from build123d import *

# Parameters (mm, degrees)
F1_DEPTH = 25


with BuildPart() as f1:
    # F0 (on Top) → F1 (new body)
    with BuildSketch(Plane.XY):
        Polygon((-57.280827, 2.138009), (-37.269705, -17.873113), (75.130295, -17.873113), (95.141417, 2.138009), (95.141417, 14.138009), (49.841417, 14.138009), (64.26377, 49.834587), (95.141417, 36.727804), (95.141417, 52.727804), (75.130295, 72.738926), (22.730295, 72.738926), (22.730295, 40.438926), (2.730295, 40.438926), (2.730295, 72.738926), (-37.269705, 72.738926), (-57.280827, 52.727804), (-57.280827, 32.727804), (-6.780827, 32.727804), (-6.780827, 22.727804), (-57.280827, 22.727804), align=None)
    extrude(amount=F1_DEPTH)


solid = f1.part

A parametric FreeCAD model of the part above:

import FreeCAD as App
import Part
import Sketcher
Q = App.Units.Quantity

doc = App.newDocument("Part")
body = doc.addObject("PartDesign::Body", "Body")

# Sketch on XY plane
sketch1 = doc.addObject("Sketcher::SketchObject", "Sketch")
body.addObject(sketch1)
sketch1.AttachmentSupport = (doc.XY_Plane, [""])
sketch1.MapMode = "FlatFace"
sketch1.addGeometry([
    Part.LineSegment(App.Vector(-57.280827, 2.138009, 0), App.Vector(-37.269705, -17.873113, 0)),  # 0
    Part.LineSegment(App.Vector(-37.269705, -17.873113, 0), App.Vector(75.130295, -17.873113, 0)),  # 1
    Part.LineSegment(App.Vector(75.130295, -17.873113, 0), App.Vector(95.141417, 2.138009, 0)),  # 2
    Part.LineSegment(App.Vector(95.141417, 2.138009, 0), App.Vector(95.141417, 14.138009, 0)),  # 3
    Part.LineSegment(App.Vector(95.141417, 14.138009, 0), App.Vector(49.841417, 14.138009, 0)),  # 4
    Part.LineSegment(App.Vector(49.841417, 14.138009, 0), App.Vector(64.26377, 49.834587, 0)),  # 5
    Part.LineSegment(App.Vector(64.26377, 49.834587, 0), App.Vector(95.141417, 36.727804, 0)),  # 6
    Part.LineSegment(App.Vector(95.141417, 36.727804, 0), App.Vector(95.141417, 52.727804, 0)),  # 7
    Part.LineSegment(App.Vector(95.141417, 52.727804, 0), App.Vector(75.130295, 72.738926, 0)),  # 8
    Part.LineSegment(App.Vector(75.130295, 72.738926, 0), App.Vector(22.730295, 72.738926, 0)),  # 9
    Part.LineSegment(App.Vector(22.730295, 72.738926, 0), App.Vector(22.730295, 40.438926, 0)),  # 10
    Part.LineSegment(App.Vector(22.730295, 40.438926, 0), App.Vector(2.730295, 40.438926, 0)),  # 11
    Part.LineSegment(App.Vector(2.730295, 40.438926, 0), App.Vector(2.730295, 72.738926, 0)),  # 12
    Part.LineSegment(App.Vector(2.730295, 72.738926, 0), App.Vector(-37.269705, 72.738926, 0)),  # 13
    Part.LineSegment(App.Vector(-37.269705, 72.738926, 0), App.Vector(-57.280827, 52.727804, 0)),  # 14
    Part.LineSegment(App.Vector(-57.280827, 52.727804, 0), App.Vector(-57.280827, 32.727804, 0)),  # 15
    Part.LineSegment(App.Vector(-57.280827, 32.727804, 0), App.Vector(-6.780827, 32.727804, 0)),  # 16
    Part.LineSegment(App.Vector(-6.780827, 32.727804, 0), App.Vector(-6.780827, 22.727804, 0)),  # 17
    Part.LineSegment(App.Vector(-6.780827, 22.727804, 0), App.Vector(-57.280827, 22.727804, 0)),  # 18
    Part.LineSegment(App.Vector(-57.280827, 22.727804, 0), App.Vector(-57.280827, 2.138009, 0)),  # 19
], False)
sketch1.addConstraint([
    Sketcher.Constraint("Coincident", 0, 2, 1, 1),
    Sketcher.Constraint("Coincident", 1, 2, 2, 1),
    Sketcher.Constraint("Coincident", 2, 2, 3, 1),
    Sketcher.Constraint("Coincident", 3, 2, 4, 1),
    Sketcher.Constraint("Coincident", 4, 2, 5, 1),
    Sketcher.Constraint("Coincident", 5, 2, 6, 1),
    Sketcher.Constraint("Coincident", 6, 2, 7, 1),
    Sketcher.Constraint("Coincident", 7, 2, 8, 1),
    Sketcher.Constraint("Coincident", 8, 2, 9, 1),
    Sketcher.Constraint("Coincident", 9, 2, 10, 1),
    Sketcher.Constraint("Coincident", 10, 2, 11, 1),
    Sketcher.Constraint("Coincident", 11, 2, 12, 1),
    Sketcher.Constraint("Coincident", 12, 2, 13, 1),
    Sketcher.Constraint("Coincident", 13, 2, 14, 1),
    Sketcher.Constraint("Coincident", 14, 2, 15, 1),
    Sketcher.Constraint("Coincident", 15, 2, 16, 1),
    Sketcher.Constraint("Coincident", 16, 2, 17, 1),
    Sketcher.Constraint("Coincident", 17, 2, 18, 1),
    Sketcher.Constraint("Coincident", 18, 2, 19, 1),
    Sketcher.Constraint("Coincident", 19, 2, 0, 1),
    Sketcher.Constraint("Horizontal", 1),
    Sketcher.Constraint("Vertical", 3),
    Sketcher.Constraint("Horizontal", 4),
    Sketcher.Constraint("Vertical", 7),
    Sketcher.Constraint("Horizontal", 9),
    Sketcher.Constraint("Vertical", 10),
    Sketcher.Constraint("Horizontal", 11),
    Sketcher.Constraint("Vertical", 12),
    Sketcher.Constraint("Horizontal", 13),
    Sketcher.Constraint("Vertical", 15),
    Sketcher.Constraint("Horizontal", 16),
    Sketcher.Constraint("Vertical", 17),
    Sketcher.Constraint("Horizontal", 18),
    Sketcher.Constraint("Vertical", 19),
    Sketcher.Constraint("Perpendicular", 0, 2),
    Sketcher.Constraint("Perpendicular", 2, 8),
    Sketcher.Constraint("Perpendicular", 8, 14),
    Sketcher.Constraint("Horizontal", 9, 2, 12, 2),
    Sketcher.Constraint("Horizontal", 7, 2, 14, 2),
    Sketcher.Constraint("Horizontal", 2, 2, 19, 2),
    Sketcher.Constraint("Vertical", 3, 2, 6, 2),
    Sketcher.Constraint("Vertical", 1, 2, 8, 2),
    Sketcher.Constraint("Vertical", 0, 2, 13, 2),
    Sketcher.Constraint("Vertical", 15, 2, 18, 2),
    Sketcher.Constraint("Equal", 11, 15),
    Sketcher.Constraint("DistanceX", 11, 2, 11, 1, Q("20 mm")),
    Sketcher.Constraint("DistanceX", 13, 2, 13, 1, Q("40 mm")),
    Sketcher.Constraint("DistanceY", 3, 1, 3, 2, Q("12 mm")),
    Sketcher.Constraint("DistanceY", 7, 1, 7, 2, Q("16 mm")),
    Sketcher.Constraint("DistanceY", 17, 2, 17, 1, Q("10 mm")),
    Sketcher.Constraint("Angle", 5, Q("68.000001 deg")),
    Sketcher.Constraint("Angle", 6, Q("-22.999999 deg")),
    Sketcher.Constraint("DistanceX", 1, 1, 1, 2, Q("112.4 mm")),
    Sketcher.Constraint("DistanceX", 4, 2, 4, 1, Q("45.3 mm")),
    Sketcher.Constraint("DistanceX", 16, 1, 16, 2, Q("50.5 mm")),
    Sketcher.Constraint("DistanceY", 10, 2, 10, 1, Q("32.3 mm")),
    Sketcher.Constraint("Distance", 0, Q("28.3 mm")),
    Sketcher.Constraint("Distance", 5, Q("38.499999 mm")),
    Sketcher.Constraint("DistanceY", -1, 1, 2, 2, Q("2.138009 mm")),
    Sketcher.Constraint("DistanceX", -1, 1, 5, 2, Q("64.26377 mm")),
])
pad1 = doc.addObject("PartDesign::Pad", "Pad")
body.addObject(pad1)
pad1.Profile = sketch1
pad1.Length = 25

doc.recompute()
